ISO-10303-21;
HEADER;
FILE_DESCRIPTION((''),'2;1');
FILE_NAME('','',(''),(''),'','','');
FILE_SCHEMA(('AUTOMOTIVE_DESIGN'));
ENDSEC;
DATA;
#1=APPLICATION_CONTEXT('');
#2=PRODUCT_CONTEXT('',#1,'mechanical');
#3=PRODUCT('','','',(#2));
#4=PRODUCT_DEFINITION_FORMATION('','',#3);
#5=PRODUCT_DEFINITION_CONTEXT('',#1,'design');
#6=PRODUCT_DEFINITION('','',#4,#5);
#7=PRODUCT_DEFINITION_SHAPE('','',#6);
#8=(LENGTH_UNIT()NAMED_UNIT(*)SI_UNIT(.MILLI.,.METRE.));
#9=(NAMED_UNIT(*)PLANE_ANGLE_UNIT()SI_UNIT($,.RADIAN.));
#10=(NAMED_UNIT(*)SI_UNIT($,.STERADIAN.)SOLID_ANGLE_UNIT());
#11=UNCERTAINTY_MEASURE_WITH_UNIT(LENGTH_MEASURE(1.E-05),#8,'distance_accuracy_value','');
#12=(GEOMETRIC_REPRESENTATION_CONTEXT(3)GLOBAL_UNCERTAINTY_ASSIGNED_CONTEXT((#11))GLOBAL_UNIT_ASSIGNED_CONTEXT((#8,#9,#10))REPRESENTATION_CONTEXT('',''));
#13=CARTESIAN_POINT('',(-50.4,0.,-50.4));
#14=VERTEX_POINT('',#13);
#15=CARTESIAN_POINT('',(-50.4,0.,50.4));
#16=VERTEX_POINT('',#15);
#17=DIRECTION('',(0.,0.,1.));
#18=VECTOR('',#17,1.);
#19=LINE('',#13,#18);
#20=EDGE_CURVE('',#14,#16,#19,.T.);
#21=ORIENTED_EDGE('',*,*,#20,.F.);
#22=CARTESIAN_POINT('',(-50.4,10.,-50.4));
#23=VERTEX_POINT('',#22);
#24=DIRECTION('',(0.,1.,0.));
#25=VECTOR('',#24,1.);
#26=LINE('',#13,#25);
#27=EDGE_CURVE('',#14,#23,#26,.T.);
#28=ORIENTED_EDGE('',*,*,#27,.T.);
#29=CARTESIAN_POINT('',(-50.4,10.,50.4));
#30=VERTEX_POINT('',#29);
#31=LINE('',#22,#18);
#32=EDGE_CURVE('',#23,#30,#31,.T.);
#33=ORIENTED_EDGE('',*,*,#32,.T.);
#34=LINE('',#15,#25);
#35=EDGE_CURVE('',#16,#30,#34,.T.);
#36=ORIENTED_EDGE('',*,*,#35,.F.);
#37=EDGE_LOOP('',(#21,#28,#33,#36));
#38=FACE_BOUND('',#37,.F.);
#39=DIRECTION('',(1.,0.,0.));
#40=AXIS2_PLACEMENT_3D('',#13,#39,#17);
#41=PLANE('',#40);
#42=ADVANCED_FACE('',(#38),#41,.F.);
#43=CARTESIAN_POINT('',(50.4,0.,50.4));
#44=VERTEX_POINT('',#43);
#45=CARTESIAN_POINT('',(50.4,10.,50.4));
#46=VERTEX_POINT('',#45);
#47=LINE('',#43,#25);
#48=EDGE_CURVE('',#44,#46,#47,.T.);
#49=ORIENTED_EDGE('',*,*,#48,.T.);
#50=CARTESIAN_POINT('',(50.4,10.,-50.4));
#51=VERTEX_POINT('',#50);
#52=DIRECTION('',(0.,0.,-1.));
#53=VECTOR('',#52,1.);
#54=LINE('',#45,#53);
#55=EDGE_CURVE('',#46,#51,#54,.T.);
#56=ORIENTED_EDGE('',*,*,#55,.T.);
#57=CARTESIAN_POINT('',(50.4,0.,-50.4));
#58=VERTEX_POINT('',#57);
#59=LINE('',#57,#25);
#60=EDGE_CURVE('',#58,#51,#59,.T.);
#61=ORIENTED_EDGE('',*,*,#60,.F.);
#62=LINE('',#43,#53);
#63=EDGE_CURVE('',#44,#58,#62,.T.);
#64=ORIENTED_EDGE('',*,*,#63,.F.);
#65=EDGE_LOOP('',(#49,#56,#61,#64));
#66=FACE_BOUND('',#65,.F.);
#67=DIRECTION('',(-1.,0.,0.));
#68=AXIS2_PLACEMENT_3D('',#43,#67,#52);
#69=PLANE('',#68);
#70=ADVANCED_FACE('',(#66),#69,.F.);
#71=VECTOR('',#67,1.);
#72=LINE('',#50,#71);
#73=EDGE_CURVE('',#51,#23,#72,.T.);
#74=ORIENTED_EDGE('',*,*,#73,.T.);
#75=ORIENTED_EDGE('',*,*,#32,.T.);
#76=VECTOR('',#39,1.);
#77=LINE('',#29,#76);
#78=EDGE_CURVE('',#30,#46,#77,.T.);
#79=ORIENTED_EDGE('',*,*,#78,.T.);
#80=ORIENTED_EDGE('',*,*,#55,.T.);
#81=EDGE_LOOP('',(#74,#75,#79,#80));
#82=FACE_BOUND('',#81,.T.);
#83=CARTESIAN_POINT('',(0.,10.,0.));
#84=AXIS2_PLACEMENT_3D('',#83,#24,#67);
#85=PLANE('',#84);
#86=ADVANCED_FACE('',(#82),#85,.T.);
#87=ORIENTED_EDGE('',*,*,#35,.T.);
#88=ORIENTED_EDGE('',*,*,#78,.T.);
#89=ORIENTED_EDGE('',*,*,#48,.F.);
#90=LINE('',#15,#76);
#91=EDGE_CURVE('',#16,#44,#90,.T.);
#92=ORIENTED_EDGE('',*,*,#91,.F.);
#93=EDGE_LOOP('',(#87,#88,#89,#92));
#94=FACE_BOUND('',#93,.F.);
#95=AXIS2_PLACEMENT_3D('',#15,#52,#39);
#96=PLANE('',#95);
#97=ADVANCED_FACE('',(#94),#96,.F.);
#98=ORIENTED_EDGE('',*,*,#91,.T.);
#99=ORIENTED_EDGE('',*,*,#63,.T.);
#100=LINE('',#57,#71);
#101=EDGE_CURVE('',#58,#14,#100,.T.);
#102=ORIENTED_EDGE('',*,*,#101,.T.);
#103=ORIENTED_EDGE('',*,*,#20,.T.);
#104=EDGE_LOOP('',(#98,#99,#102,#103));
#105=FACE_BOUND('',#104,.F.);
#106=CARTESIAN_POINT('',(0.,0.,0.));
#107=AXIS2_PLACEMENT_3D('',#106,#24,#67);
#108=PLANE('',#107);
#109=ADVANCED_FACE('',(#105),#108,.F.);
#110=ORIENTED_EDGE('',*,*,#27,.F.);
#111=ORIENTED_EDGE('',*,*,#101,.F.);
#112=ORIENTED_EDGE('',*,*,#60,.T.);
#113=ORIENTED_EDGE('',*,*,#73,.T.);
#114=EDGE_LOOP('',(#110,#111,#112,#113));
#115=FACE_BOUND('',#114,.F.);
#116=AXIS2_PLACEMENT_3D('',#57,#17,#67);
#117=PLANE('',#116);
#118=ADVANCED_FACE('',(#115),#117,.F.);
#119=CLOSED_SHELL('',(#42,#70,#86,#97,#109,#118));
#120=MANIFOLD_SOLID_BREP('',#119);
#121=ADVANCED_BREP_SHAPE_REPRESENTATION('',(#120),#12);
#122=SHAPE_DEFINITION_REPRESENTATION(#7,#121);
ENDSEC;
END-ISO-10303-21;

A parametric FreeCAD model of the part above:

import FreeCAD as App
import Part
import Sketcher

V = App.Vector


def add_polygon(sketch, points):
    """Adds a closed chain of lines whose ends are joined by coincident constraints."""
    first, n = sketch.GeometryCount, len(points)
    for a, b in zip(points, points[1:] + points[:1]):
        sketch.addGeometry(Part.LineSegment(App.Vector(*a, 0), App.Vector(*b, 0)), False)
    for i in range(n):
        sketch.addConstraint(Sketcher.Constraint("Coincident", first + i, 2, first + (i + 1) % n, 1))

doc = App.newDocument("Part")
body = doc.addObject("PartDesign::Body", "Body")

sketch1 = body.newObject("Sketcher::SketchObject", "Sketch")
sketch1.AttachmentSupport = (doc.getObject("XZ_Plane"), [""])
sketch1.MapMode = "FlatFace"
add_polygon(sketch1, [(-50.4, -50.4), (-50.4, 50.4), (50.4, 50.4), (50.4, -50.4)])
sketch1.addConstraint([
    Sketcher.Constraint("Vertical", 0),
    Sketcher.Constraint("Horizontal", 1),
    Sketcher.Constraint("Vertical", 2),
    Sketcher.Constraint("Horizontal", 3),
    Sketcher.Constraint("Symmetric", 0, 2, 2, 2, -1, 1),
    Sketcher.Constraint("Equal", 3, 0),
    Sketcher.Constraint("DistanceX", 1, 1, 1, 2, 100.8),
])
pad1 = body.newObject("PartDesign::Pad", "Pad")
pad1.Profile = sketch1
pad1.Length = 10
pad1.Reversed = True

doc.recompute()
